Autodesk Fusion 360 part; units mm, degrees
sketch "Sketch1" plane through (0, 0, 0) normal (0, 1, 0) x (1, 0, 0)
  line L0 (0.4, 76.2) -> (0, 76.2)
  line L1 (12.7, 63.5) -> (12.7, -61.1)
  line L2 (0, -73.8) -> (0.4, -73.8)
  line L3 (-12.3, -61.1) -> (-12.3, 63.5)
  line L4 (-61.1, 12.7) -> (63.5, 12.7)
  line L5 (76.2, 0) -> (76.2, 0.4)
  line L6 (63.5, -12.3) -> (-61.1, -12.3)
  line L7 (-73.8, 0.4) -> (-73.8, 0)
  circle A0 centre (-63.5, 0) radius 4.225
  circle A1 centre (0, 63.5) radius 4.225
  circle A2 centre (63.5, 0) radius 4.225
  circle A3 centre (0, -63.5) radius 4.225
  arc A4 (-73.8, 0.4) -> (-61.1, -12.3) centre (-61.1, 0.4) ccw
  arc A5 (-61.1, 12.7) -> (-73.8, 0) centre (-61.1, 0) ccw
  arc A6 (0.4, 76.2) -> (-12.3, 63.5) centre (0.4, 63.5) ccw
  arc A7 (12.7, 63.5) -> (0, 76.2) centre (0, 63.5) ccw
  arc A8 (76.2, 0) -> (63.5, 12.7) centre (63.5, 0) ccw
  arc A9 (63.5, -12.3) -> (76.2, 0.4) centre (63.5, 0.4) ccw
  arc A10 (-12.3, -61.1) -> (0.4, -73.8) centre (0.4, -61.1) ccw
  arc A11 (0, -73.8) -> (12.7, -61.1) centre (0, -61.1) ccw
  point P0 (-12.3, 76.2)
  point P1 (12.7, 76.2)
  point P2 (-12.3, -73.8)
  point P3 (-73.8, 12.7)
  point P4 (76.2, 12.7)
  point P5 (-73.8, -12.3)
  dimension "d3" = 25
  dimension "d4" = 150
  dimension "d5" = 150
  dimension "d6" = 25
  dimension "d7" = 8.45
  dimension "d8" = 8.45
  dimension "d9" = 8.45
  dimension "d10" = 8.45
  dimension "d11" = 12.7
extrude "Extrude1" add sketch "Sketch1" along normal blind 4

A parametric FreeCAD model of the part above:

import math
import FreeCAD as App
import Part
import Sketcher
Q = App.Units.Quantity

doc = App.newDocument("Part")
body = doc.addObject("PartDesign::Body", "Body")

# Sketch on XZ plane
sketch1 = doc.addObject("Sketcher::SketchObject", "Sketch")
body.addObject(sketch1)
sketch1.AttachmentSupport = (doc.XZ_Plane, [""])
sketch1.MapMode = "FlatFace"
sketch1.addGeometry([
    Part.LineSegment(App.Vector(12.7, -12.7, 0), App.Vector(12.7, -63.5, 0)),  # 0
    Part.ArcOfCircle(Part.Circle(App.Vector(0, -63.5, 0), App.Vector(0, 0, 1), 12.7), math.radians(-89.097667), math.radians(0)),  # 1
    Part.ArcOfCircle(Part.Circle(App.Vector(0.4, -63.5, 0), App.Vector(0, 0, 1), 12.7), math.radians(180), math.radians(269.097667)),  # 2
    Part.LineSegment(App.Vector(-12.3, -63.5, 0), App.Vector(-12.3, -12.7, 0)),  # 3
    Part.LineSegment(App.Vector(-12.3, -12.7, 0), App.Vector(-61.1, -12.7, 0)),  # 4
    Part.ArcOfCircle(Part.Circle(App.Vector(-61.1, 0, 0), App.Vector(0, 0, 1), 12.7), math.radians(-179.097667), math.radians(-90)),  # 5
    Part.ArcOfCircle(Part.Circle(App.Vector(-61.1, -0.4, 0), App.Vector(0, 0, 1), 12.7), math.radians(90), math.radians(179.097667)),  # 6
    Part.LineSegment(App.Vector(-61.1, 12.3, 0), App.Vector(-12.3, 12.3, 0)),  # 7
    Part.LineSegment(App.Vector(-12.3, 12.3, 0), App.Vector(-12.3, 61.1, 0)),  # 8
    Part.ArcOfCircle(Part.Circle(App.Vector(0.4, 61.1, 0), App.Vector(0, 0, 1), 12.7), math.radians(90.902333), math.radians(180)),  # 9
    Part.ArcOfCircle(Part.Circle(App.Vector(0, 61.1, 0), App.Vector(0, 0, 1), 12.7), math.radians(0), math.radians(89.097667)),  # 10
    Part.LineSegment(App.Vector(12.7, 61.1, 0), App.Vector(12.7, 12.3, 0)),  # 11
    Part.LineSegment(App.Vector(12.7, 12.3, 0), App.Vector(63.5, 12.3, 0)),  # 12
    Part.ArcOfCircle(Part.Circle(App.Vector(63.5, -0.4, 0), App.Vector(0, 0, 1), 12.7), math.radians(0.902333), math.radians(90)),  # 13
    Part.ArcOfCircle(Part.Circle(App.Vector(63.5, 0, 0), App.Vector(0, 0, 1), 12.7), math.radians(-90), math.radians(-0.902333)),  # 14
    Part.LineSegment(App.Vector(63.5, -12.7, 0), App.Vector(12.7, -12.7, 0)),  # 15
    Part.Circle(App.Vector(0, -63.5, 0), App.Vector(0, 0, 1), 4.225),  # 16
    Part.Circle(App.Vector(63.5, 0, 0), App.Vector(0, 0, 1), 4.225),  # 17
    Part.Circle(App.Vector(0, 63.5, 0), App.Vector(0, 0, 1), 4.225),  # 18
    Part.Circle(App.Vector(-63.5, 0, 0), App.Vector(0, 0, 1), 4.225),  # 19
], False)
sketch1.addConstraint([
    Sketcher.Constraint("Tangent", 0, 2, 1, 2),
    Sketcher.Constraint("Coincident", 1, 1, 2, 2),
    Sketcher.Constraint("Tangent", 2, 1, 3, 1),
    Sketcher.Constraint("Coincident", 3, 2, 4, 1),
    Sketcher.Constraint("Tangent", 4, 2, 5, 2),
    Sketcher.Constraint("Coincident", 5, 1, 6, 2),
    Sketcher.Constraint("Tangent", 6, 1, 7, 1),
    Sketcher.Constraint("Coincident", 7, 2, 8, 1),
    Sketcher.Constraint("Tangent", 8, 2, 9, 2),
    Sketcher.Constraint("Coincident", 9, 1, 10, 2),
    Sketcher.Constraint("Tangent", 10, 1, 11, 1),
    Sketcher.Constraint("Coincident", 11, 2, 12, 1),
    Sketcher.Constraint("Tangent", 12, 2, 13, 2),
    Sketcher.Constraint("Coincident", 13, 1, 14, 2),
    Sketcher.Constraint("Tangent", 14, 1, 15, 1),
    Sketcher.Constraint("Coincident", 15, 2, 0, 1),
    Sketcher.Constraint("Vertical", 0),
    Sketcher.Constraint("Vertical", 3),
    Sketcher.Constraint("Horizontal", 4),
    Sketcher.Constraint("Horizontal", 7),
    Sketcher.Constraint("Vertical", 8),
    Sketcher.Constraint("Vertical", 11),
    Sketcher.Constraint("Horizontal", 12),
    Sketcher.Constraint("Horizontal", 15),
    Sketcher.Constraint("Coincident", 16, 3, 1, 3),
    Sketcher.Constraint("Coincident", 17, 3, 14, 3),
    Sketcher.Constraint("Equal", 1, 2),
    Sketcher.Constraint("Equal", 2, 5),
    Sketcher.Constraint("Equal", 5, 6),
    Sketcher.Constraint("Equal", 6, 9),
    Sketcher.Constraint("Equal", 9, 10),
    Sketcher.Constraint("Equal", 10, 13),
    Sketcher.Constraint("Equal", 13, 14),
    Sketcher.Constraint("Equal", 16, 17),
    Sketcher.Constraint("Equal", 17, 18),
    Sketcher.Constraint("Equal", 18, 19),
    Sketcher.Constraint("Symmetric", 1, 3, 18, 3, -1, 1),
    Sketcher.Constraint("Symmetric", 14, 3, 19, 3, -1, 1),
    Sketcher.Constraint("PointOnObject", 1, 3, -2),
    Sketcher.Constraint("PointOnObject", 5, 3, -1),
    Sketcher.Constraint("PointOnObject", 10, 3, -2),
    Sketcher.Constraint("PointOnObject", 14, 3, -1),
    Sketcher.Constraint("Horizontal", 1, 3, 2, 3),
    Sketcher.Constraint("Horizontal", 9, 3, 10, 3),
    Sketcher.Constraint("Horizontal", 6, 3, 13, 3),
    Sketcher.Constraint("Horizontal", 5, 1, 13, 1),
    Sketcher.Constraint("Vertical", 5, 3, 6, 3),
    Sketcher.Constraint("Vertical", 2, 3, 9, 3),
    Sketcher.Constraint("Equal", 15, 0),
    Sketcher.Constraint("Equal", 7, 8),
    Sketcher.Constraint("Radius", 1, Q("12.7 mm")),
    Sketcher.Constraint("Diameter", 16, Q("8.45 mm")),
    Sketcher.Constraint("DistanceX", 2, 1, 0, 2, Q("25 mm")),
    Sketcher.Constraint("DistanceY", 4, 2, 6, 1, Q("25 mm")),
    Sketcher.Constraint("DistanceX", 4, 2, 4, 1, Q("48.8 mm")),
    Sketcher.Constraint("DistanceX", 12, 1, 12, 2, Q("50.8 mm")),
])
pad1 = doc.addObject("PartDesign::Pad", "Pad")
body.addObject(pad1)
pad1.Profile = sketch1
pad1.Length = 4
pad1.Reversed = True

doc.recompute()
